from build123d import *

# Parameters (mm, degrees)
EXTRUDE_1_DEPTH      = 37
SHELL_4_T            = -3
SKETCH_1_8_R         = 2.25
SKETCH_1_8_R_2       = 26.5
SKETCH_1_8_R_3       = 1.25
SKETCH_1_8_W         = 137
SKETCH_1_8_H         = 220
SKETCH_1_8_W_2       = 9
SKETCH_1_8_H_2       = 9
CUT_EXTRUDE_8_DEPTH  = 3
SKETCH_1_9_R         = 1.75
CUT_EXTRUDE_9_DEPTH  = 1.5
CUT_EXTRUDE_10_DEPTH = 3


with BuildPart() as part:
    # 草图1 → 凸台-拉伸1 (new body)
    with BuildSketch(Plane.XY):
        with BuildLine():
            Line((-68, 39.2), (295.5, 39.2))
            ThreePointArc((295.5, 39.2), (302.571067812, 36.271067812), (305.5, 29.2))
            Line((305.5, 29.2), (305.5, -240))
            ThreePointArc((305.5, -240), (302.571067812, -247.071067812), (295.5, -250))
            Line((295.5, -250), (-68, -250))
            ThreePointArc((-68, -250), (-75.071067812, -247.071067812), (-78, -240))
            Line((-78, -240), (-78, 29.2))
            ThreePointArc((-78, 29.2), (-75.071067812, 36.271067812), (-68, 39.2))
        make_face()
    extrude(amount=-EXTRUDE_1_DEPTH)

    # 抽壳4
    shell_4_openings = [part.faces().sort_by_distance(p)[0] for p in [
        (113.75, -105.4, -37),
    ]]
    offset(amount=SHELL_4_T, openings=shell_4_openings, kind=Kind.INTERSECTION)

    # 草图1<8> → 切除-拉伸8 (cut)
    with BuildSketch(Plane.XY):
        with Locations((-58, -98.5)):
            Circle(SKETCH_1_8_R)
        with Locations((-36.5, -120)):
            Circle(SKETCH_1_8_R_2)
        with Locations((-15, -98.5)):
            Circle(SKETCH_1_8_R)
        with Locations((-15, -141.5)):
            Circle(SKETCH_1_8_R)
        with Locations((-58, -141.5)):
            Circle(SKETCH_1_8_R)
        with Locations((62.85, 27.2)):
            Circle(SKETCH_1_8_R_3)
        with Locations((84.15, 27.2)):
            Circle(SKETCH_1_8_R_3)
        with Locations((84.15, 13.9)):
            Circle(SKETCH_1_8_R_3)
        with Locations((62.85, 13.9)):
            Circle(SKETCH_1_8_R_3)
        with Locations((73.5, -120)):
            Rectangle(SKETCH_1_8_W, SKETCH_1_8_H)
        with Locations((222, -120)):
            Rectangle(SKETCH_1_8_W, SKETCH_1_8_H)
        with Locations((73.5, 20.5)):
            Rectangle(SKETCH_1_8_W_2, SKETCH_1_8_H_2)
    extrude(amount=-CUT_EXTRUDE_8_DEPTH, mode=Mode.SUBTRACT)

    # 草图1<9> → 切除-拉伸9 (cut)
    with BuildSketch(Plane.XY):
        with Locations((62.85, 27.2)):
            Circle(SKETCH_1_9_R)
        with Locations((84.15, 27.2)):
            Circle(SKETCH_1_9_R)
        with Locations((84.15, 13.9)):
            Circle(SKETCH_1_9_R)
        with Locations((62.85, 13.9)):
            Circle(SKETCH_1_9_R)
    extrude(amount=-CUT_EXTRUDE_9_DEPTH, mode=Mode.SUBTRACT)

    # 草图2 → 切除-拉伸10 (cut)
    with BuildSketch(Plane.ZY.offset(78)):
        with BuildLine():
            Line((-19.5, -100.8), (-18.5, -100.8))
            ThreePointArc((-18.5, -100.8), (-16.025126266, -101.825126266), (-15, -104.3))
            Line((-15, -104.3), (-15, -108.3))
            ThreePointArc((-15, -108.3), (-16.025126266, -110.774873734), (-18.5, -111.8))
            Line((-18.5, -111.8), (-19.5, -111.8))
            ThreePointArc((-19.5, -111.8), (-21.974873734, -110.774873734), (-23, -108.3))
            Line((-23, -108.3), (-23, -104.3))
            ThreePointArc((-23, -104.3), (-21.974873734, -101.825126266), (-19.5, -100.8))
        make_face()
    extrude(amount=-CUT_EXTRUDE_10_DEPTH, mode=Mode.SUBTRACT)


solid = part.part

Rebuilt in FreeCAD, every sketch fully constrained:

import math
import FreeCAD as App
import Part
import Sketcher
from FreeCAD import Vector


def faces_at(feature, points):
    """Names of the faces that lie closest to the given points."""
    faces = feature.Shape.Faces
    near = lambda p: min(range(len(faces)), key=lambda i: faces[i].distToShape(Part.Vertex(*p))[0])
    return sorted({f"Face{near(p) + 1}" for p in points})


def add_polygon(sketch, points):
    """Adds a closed chain of lines whose ends are joined by coincident constraints."""
    first, n = sketch.GeometryCount, len(points)
    for a, b in zip(points, points[1:] + points[:1]):
        sketch.addGeometry(Part.LineSegment(App.Vector(*a, 0), App.Vector(*b, 0)), False)
    for i in range(n):
        sketch.addConstraint(Sketcher.Constraint("Coincident", first + i, 2, first + (i + 1) % n, 1))

doc = App.newDocument("Part")
params = doc.addObject("Spreadsheet::Sheet", "Params")
for row, (alias, value) in enumerate([
    ("sketch1_radius", "10 mm"),
    ("sketch1_width", "363.5 mm"),
    ("sketch1_height", "269.2 mm"),
    ("pad1_length", "37 mm"),
    ("thickness_wall", "3 mm"),
    ("sketch2_diameter", "53 mm"),
    ("sketch2_diameter2", "4.5 mm"),
    ("sketch2_diameter3", "2.5 mm"),
    ("sketch2_width", "137 mm"),
    ("sketch2_width2", "9 mm"),
    ("pocket1_length", "3 mm"),
    ("sketch3_diameter", "3.5 mm"),
    ("pocket2_length", "1.5 mm"),
    ("sketch4_radius", "3.5 mm"),
    ("sketch4_width", "4 mm"),
    ("sketch4_height", "1 mm"),
    ("pocket3_length", "3 mm"),
], start=1):
    params.set(f"A{row}", alias)
    params.set(f"B{row}", "=" + value)
    params.setAlias(f"B{row}", alias)

body = doc.addObject("PartDesign::Body", "Body")

# Sketch on XY plane
sketch1 = body.newObject("Sketcher::SketchObject", "Sketch")
sketch1.AttachmentSupport = (doc.getObject("XY_Plane"), [""])
sketch1.MapMode = "FlatFace"
sketch1.addGeometry([
    Part.LineSegment(Vector(295.5, 39.2, 0), Vector(-68, 39.2, 0)),  # 0
    Part.ArcOfCircle(Part.Circle(Vector(-68, 29.2, 0), Vector(0, 0, 1), 10), math.radians(90), math.radians(180)),  # 1
    Part.LineSegment(Vector(-78, 29.2, 0), Vector(-78, -240, 0)),  # 2
    Part.ArcOfCircle(Part.Circle(Vector(-68, -240, 0), Vector(0, 0, 1), 10), math.radians(180), math.radians(270)),  # 3
    Part.LineSegment(Vector(-68, -250, 0), Vector(295.5, -250, 0)),  # 4
    Part.ArcOfCircle(Part.Circle(Vector(295.5, -240, 0), Vector(0, 0, 1), 10), math.radians(-90), math.radians(0)),  # 5
    Part.LineSegment(Vector(305.5, -240, 0), Vector(305.5, 29.2, 0)),  # 6
    Part.ArcOfCircle(Part.Circle(Vector(295.5, 29.2, 0), Vector(0, 0, 1), 10), math.radians(0), math.radians(90)),  # 7
], False)
sketch1.addConstraint([
    Sketcher.Constraint("Tangent", 0, 2, 1, 1),
    Sketcher.Constraint("Tangent", 1, 2, 2, 1),
    Sketcher.Constraint("Tangent", 2, 2, 3, 1),
    Sketcher.Constraint("Tangent", 3, 2, 4, 1),
    Sketcher.Constraint("Tangent", 4, 2, 5, 1),
    Sketcher.Constraint("Tangent", 5, 2, 6, 1),
    Sketcher.Constraint("Tangent", 6, 2, 7, 1),
    Sketcher.Constraint("Tangent", 7, 2, 0, 1),
    Sketcher.Constraint("Horizontal", 0),
    Sketcher.Constraint("Vertical", 2),
    Sketcher.Constraint("Horizontal", 4),
    Sketcher.Constraint("Vertical", 6),
    Sketcher.Constraint("Equal", 1, 3),
    Sketcher.Constraint("Equal", 3, 5),
    Sketcher.Constraint("Equal", 5, 7),
    Sketcher.Constraint("Radius", 1, 10.0),
    Sketcher.Constraint("DistanceX", 0, 2, 0, 1, 363.5),
    Sketcher.Constraint("DistanceY", 2, 2, 2, 1, 269.2),
    Sketcher.Constraint("DistanceX", 1, 3, -1, 1, 68.0),
    Sketcher.Constraint("DistanceY", 3, 3, -1, 1, 240.0),
])
sketch1.setExpression("Constraints[15]", "Params.sketch1_radius")
sketch1.setExpression("Constraints[16]", "Params.sketch1_width")
sketch1.setExpression("Constraints[17]", "Params.sketch1_height")
pad1 = body.newObject("PartDesign::Pad", "Pad")
pad1.Profile = sketch1
pad1.setExpression("Length", "Params.pad1_length")
pad1.Reversed = True
doc.recompute()

thickness = body.newObject("PartDesign::Thickness", "Thickness")
thickness.Base = (pad1, faces_at(pad1, [(113.75, -105.4, -37)]))
thickness.setExpression("Value", "Params.thickness_wall")
thickness.Reversed = True
thickness.Join = "Intersection"

# Sketch on XY plane
sketch2 = body.newObject("Sketcher::SketchObject", "Sketch001")
sketch2.AttachmentSupport = (doc.getObject("XY_Plane"), [""])
sketch2.MapMode = "FlatFace"
sketch2.addGeometry(Part.Circle(Vector(-58, -98.5, 0), Vector(0, 0, 1), 2.25), False)  # 0
sketch2.addGeometry(Part.Circle(Vector(-36.5, -120, 0), Vector(0, 0, 1), 26.5), False)  # 1
sketch2.addGeometry(Part.Circle(Vector(-15, -98.5, 0), Vector(0, 0, 1), 2.25), False)  # 2
sketch2.addGeometry(Part.Circle(Vector(-15, -141.5, 0), Vector(0, 0, 1), 2.25), False)  # 3
sketch2.addGeometry(Part.Circle(Vector(-58, -141.5, 0), Vector(0, 0, 1), 2.25), False)  # 4
sketch2.addGeometry(Part.Circle(Vector(62.85, 27.2, 0), Vector(0, 0, 1), 1.25), False)  # 5
sketch2.addGeometry(Part.Circle(Vector(84.15, 27.2, 0), Vector(0, 0, 1), 1.25), False)  # 6
sketch2.addGeometry(Part.Circle(Vector(84.15, 13.9, 0), Vector(0, 0, 1), 1.25), False)  # 7
sketch2.addGeometry(Part.Circle(Vector(62.85, 13.9, 0), Vector(0, 0, 1), 1.25), False)  # 8
add_polygon(sketch2, [(5, -10), (5, -230), (142, -230), (142, -10)])  # lines 9-12
add_polygon(sketch2, [(153.5, -10), (153.5, -230), (290.5, -230), (290.5, -10)])  # lines 13-16
add_polygon(sketch2, [(69, 25), (69, 16), (78, 16), (78, 25)])  # lines 17-20
sketch2.addConstraint([
    Sketcher.Constraint("Vertical", 9),
    Sketcher.Constraint("Horizontal", 10),
    Sketcher.Constraint("Vertical", 11),
    Sketcher.Constraint("Horizontal", 12),
    Sketcher.Constraint("Vertical", 13),
    Sketcher.Constraint("Horizontal", 14),
    Sketcher.Constraint("Vertical", 15),
    Sketcher.Constraint("Horizontal", 16),
    Sketcher.Constraint("Vertical", 17),
    Sketcher.Constraint("Horizontal", 18),
    Sketcher.Constraint("Vertical", 19),
    Sketcher.Constraint("Horizontal", 20),
    Sketcher.Constraint("Equal", 0, 2),
    Sketcher.Constraint("Equal", 2, 3),
    Sketcher.Constraint("Equal", 3, 4),
    Sketcher.Constraint("Equal", 5, 6),
    Sketcher.Constraint("Equal", 6, 7),
    Sketcher.Constraint("Equal", 7, 8),
    Sketcher.Constraint("Horizontal", 0, 3, 2, 3),
    Sketcher.Constraint("Horizontal", 3, 3, 4, 3),
    Sketcher.Constraint("Horizontal", 5, 3, 6, 3),
    Sketcher.Constraint("Horizontal", 7, 3, 8, 3),
    Sketcher.Constraint("Horizontal", 10, 2, 13, 2),
    Sketcher.Constraint("Horizontal", 12, 2, 15, 2),
    Sketcher.Constraint("Vertical", 2, 3, 3, 3),
    Sketcher.Constraint("Vertical", 0, 3, 4, 3),
    Sketcher.Constraint("Vertical", 6, 3, 7, 3),
    Sketcher.Constraint("Vertical", 5, 3, 8, 3),
    Sketcher.Constraint("Equal", 12, 14),
    Sketcher.Constraint("Equal", 20, 17),
    Sketcher.Constraint("Diameter", 1, 53.0),
    Sketcher.Constraint("Diameter", 0, 4.5),
    Sketcher.Constraint("Diameter", 5, 2.5),
    Sketcher.Constraint("DistanceX", 10, 1, 10, 2, 137.0),
    Sketcher.Constraint("DistanceX", 18, 1, 18, 2, 9.0),
    Sketcher.Constraint("DistanceY", 9, 2, 9, 1, 220.0),
    Sketcher.Constraint("DistanceX", 0, 3, -1, 1, 58.0),
    Sketcher.Constraint("DistanceY", 1, 3, -1, 1, 120.0),
    Sketcher.Constraint("DistanceX", 2, 3, -1, 1, 15.0),
    Sketcher.Constraint("DistanceX", -1, 1, 9, 2, 5.0),
    Sketcher.Constraint("DistanceY", 9, 2, -1, 1, 230.0),
    Sketcher.Constraint("DistanceX", -1, 1, 17, 2, 69.0),
    Sketcher.Constraint("DistanceY", -1, 1, 17, 2, 16.0),
    Sketcher.Constraint("DistanceY", 3, 3, 2, 3, 43.0),
    Sketcher.Constraint("DistanceX", 1, 3, 13, 2, 190.0),
    Sketcher.Constraint("DistanceY", 0, 3, -1, 1, 98.5),
    Sketcher.Constraint("DistanceX", 1, 3, -1, 1, 36.5),
    Sketcher.Constraint("DistanceY", -1, 1, 5, 3, 27.2),
    Sketcher.Constraint("DistanceY", -1, 1, 7, 3, 13.9),
    Sketcher.Constraint("DistanceX", 5, 3, 6, 3, 21.3),
    Sketcher.Constraint("DistanceX", -1, 1, 5, 3, 62.85),
])
sketch2.setExpression("Constraints[42]", "Params.sketch2_diameter")
sketch2.setExpression("Constraints[43]", "Params.sketch2_diameter2")
sketch2.setExpression("Constraints[44]", "Params.sketch2_diameter3")
sketch2.setExpression("Constraints[45]", "Params.sketch2_width")
sketch2.setExpression("Constraints[46]", "Params.sketch2_width2")
pocket1 = body.newObject("PartDesign::Pocket", "Pocket")
pocket1.Profile = sketch2
pocket1.setExpression("Length", "Params.pocket1_length")

# Sketch on XY plane
sketch3 = body.newObject("Sketcher::SketchObject", "Sketch002")
sketch3.AttachmentSupport = (doc.getObject("XY_Plane"), [""])
sketch3.MapMode = "FlatFace"
sketch3.addGeometry([
    Part.Circle(Vector(62.85, 27.2, 0), Vector(0, 0, 1), 1.75),
    Part.Circle(Vector(84.15, 27.2, 0), Vector(0, 0, 1), 1.75),
    Part.Circle(Vector(84.15, 13.9, 0), Vector(0, 0, 1), 1.75),
    Part.Circle(Vector(62.85, 13.9, 0), Vector(0, 0, 1), 1.75),
], False)
sketch3.addConstraint([
    Sketcher.Constraint("Equal", 0, 1),
    Sketcher.Constraint("Equal", 1, 2),
    Sketcher.Constraint("Equal", 2, 3),
    Sketcher.Constraint("Horizontal", 0, 3, 1, 3),
    Sketcher.Constraint("Horizontal", 2, 3, 3, 3),
    Sketcher.Constraint("Vertical", 1, 3, 2, 3),
    Sketcher.Constraint("Vertical", 0, 3, 3, 3),
    Sketcher.Constraint("Diameter", 0, 3.5),
    Sketcher.Constraint("DistanceY", -1, 1, 0, 3, 27.2),
    Sketcher.Constraint("DistanceY", -1, 1, 2, 3, 13.9),
    Sketcher.Constraint("DistanceX", 0, 3, 1, 3, 21.3),
    Sketcher.Constraint("DistanceX", -1, 1, 0, 3, 62.85),
])
sketch3.setExpression("Constraints[7]", "Params.sketch3_diameter")
pocket2 = body.newObject("PartDesign::Pocket", "Pocket001")
pocket2.Profile = sketch3
pocket2.setExpression("Length", "Params.pocket2_length")

# Sketch on YZ plane
sketch4 = body.newObject("Sketcher::SketchObject", "Sketch003")
sketch4.AttachmentSupport = (doc.getObject("YZ_Plane"), [""])
sketch4.MapMode = "FlatFace"
sketch4.AttachmentOffset = App.Placement(Vector(0, 0, -78), App.Rotation())
sketch4.addGeometry([
    Part.LineSegment(Vector(-100.8, -18.5, 0), Vector(-100.8, -19.5, 0)),  # 0
    Part.ArcOfCircle(Part.Circle(Vector(-104.3, -19.5, 0), Vector(0, 0, 1), 3.5), math.radians(-90), math.radians(0)),  # 1
    Part.LineSegment(Vector(-104.3, -23, 0), Vector(-108.3, -23, 0)),  # 2
    Part.ArcOfCircle(Part.Circle(Vector(-108.3, -19.5, 0), Vector(0, 0, 1), 3.5), math.radians(-180), math.radians(-90)),  # 3
    Part.LineSegment(Vector(-111.8, -19.5, 0), Vector(-111.8, -18.5, 0)),  # 4
    Part.ArcOfCircle(Part.Circle(Vector(-108.3, -18.5, 0), Vector(0, 0, 1), 3.5), math.radians(90), math.radians(180)),  # 5
    Part.LineSegment(Vector(-108.3, -15, 0), Vector(-104.3, -15, 0)),  # 6
    Part.ArcOfCircle(Part.Circle(Vector(-104.3, -18.5, 0), Vector(0, 0, 1), 3.5), math.radians(0), math.radians(90)),  # 7
], False)
sketch4.addConstraint([
    Sketcher.Constraint("Tangent", 0, 2, 1, 2),
    Sketcher.Constraint("Tangent", 1, 1, 2, 1),
    Sketcher.Constraint("Tangent", 2, 2, 3, 2),
    Sketcher.Constraint("Tangent", 3, 1, 4, 1),
    Sketcher.Constraint("Tangent", 4, 2, 5, 2),
    Sketcher.Constraint("Tangent", 5, 1, 6, 1),
    Sketcher.Constraint("Tangent", 6, 2, 7, 2),
    Sketcher.Constraint("Tangent", 7, 1, 0, 1),
    Sketcher.Constraint("Vertical", 0),
    Sketcher.Constraint("Horizontal", 2),
    Sketcher.Constraint("Vertical", 4),
    Sketcher.Constraint("Horizontal", 6),
    Sketcher.Constraint("Equal", 1, 3),
    Sketcher.Constraint("Equal", 3, 5),
    Sketcher.Constraint("Equal", 5, 7),
    Sketcher.Constraint("Radius", 1, 3.5),
    Sketcher.Constraint("DistanceX", 2, 2, 2, 1, 4.0),
    Sketcher.Constraint("DistanceY", 0, 2, 0, 1, 1.0),
    Sketcher.Constraint("DistanceY", 1, 1, -1, 1, 23.0),
    Sketcher.Constraint("DistanceX", 1, 3, -1, 1, 104.3),
])
sketch4.setExpression("Constraints[15]", "Params.sketch4_radius")
sketch4.setExpression("Constraints[16]", "Params.sketch4_width")
sketch4.setExpression("Constraints[17]", "Params.sketch4_height")
pocket3 = body.newObject("PartDesign::Pocket", "Pocket002")
pocket3.Profile = sketch4
pocket3.setExpression("Length", "Params.pocket3_length")
pocket3.Reversed = True

doc.recompute()
